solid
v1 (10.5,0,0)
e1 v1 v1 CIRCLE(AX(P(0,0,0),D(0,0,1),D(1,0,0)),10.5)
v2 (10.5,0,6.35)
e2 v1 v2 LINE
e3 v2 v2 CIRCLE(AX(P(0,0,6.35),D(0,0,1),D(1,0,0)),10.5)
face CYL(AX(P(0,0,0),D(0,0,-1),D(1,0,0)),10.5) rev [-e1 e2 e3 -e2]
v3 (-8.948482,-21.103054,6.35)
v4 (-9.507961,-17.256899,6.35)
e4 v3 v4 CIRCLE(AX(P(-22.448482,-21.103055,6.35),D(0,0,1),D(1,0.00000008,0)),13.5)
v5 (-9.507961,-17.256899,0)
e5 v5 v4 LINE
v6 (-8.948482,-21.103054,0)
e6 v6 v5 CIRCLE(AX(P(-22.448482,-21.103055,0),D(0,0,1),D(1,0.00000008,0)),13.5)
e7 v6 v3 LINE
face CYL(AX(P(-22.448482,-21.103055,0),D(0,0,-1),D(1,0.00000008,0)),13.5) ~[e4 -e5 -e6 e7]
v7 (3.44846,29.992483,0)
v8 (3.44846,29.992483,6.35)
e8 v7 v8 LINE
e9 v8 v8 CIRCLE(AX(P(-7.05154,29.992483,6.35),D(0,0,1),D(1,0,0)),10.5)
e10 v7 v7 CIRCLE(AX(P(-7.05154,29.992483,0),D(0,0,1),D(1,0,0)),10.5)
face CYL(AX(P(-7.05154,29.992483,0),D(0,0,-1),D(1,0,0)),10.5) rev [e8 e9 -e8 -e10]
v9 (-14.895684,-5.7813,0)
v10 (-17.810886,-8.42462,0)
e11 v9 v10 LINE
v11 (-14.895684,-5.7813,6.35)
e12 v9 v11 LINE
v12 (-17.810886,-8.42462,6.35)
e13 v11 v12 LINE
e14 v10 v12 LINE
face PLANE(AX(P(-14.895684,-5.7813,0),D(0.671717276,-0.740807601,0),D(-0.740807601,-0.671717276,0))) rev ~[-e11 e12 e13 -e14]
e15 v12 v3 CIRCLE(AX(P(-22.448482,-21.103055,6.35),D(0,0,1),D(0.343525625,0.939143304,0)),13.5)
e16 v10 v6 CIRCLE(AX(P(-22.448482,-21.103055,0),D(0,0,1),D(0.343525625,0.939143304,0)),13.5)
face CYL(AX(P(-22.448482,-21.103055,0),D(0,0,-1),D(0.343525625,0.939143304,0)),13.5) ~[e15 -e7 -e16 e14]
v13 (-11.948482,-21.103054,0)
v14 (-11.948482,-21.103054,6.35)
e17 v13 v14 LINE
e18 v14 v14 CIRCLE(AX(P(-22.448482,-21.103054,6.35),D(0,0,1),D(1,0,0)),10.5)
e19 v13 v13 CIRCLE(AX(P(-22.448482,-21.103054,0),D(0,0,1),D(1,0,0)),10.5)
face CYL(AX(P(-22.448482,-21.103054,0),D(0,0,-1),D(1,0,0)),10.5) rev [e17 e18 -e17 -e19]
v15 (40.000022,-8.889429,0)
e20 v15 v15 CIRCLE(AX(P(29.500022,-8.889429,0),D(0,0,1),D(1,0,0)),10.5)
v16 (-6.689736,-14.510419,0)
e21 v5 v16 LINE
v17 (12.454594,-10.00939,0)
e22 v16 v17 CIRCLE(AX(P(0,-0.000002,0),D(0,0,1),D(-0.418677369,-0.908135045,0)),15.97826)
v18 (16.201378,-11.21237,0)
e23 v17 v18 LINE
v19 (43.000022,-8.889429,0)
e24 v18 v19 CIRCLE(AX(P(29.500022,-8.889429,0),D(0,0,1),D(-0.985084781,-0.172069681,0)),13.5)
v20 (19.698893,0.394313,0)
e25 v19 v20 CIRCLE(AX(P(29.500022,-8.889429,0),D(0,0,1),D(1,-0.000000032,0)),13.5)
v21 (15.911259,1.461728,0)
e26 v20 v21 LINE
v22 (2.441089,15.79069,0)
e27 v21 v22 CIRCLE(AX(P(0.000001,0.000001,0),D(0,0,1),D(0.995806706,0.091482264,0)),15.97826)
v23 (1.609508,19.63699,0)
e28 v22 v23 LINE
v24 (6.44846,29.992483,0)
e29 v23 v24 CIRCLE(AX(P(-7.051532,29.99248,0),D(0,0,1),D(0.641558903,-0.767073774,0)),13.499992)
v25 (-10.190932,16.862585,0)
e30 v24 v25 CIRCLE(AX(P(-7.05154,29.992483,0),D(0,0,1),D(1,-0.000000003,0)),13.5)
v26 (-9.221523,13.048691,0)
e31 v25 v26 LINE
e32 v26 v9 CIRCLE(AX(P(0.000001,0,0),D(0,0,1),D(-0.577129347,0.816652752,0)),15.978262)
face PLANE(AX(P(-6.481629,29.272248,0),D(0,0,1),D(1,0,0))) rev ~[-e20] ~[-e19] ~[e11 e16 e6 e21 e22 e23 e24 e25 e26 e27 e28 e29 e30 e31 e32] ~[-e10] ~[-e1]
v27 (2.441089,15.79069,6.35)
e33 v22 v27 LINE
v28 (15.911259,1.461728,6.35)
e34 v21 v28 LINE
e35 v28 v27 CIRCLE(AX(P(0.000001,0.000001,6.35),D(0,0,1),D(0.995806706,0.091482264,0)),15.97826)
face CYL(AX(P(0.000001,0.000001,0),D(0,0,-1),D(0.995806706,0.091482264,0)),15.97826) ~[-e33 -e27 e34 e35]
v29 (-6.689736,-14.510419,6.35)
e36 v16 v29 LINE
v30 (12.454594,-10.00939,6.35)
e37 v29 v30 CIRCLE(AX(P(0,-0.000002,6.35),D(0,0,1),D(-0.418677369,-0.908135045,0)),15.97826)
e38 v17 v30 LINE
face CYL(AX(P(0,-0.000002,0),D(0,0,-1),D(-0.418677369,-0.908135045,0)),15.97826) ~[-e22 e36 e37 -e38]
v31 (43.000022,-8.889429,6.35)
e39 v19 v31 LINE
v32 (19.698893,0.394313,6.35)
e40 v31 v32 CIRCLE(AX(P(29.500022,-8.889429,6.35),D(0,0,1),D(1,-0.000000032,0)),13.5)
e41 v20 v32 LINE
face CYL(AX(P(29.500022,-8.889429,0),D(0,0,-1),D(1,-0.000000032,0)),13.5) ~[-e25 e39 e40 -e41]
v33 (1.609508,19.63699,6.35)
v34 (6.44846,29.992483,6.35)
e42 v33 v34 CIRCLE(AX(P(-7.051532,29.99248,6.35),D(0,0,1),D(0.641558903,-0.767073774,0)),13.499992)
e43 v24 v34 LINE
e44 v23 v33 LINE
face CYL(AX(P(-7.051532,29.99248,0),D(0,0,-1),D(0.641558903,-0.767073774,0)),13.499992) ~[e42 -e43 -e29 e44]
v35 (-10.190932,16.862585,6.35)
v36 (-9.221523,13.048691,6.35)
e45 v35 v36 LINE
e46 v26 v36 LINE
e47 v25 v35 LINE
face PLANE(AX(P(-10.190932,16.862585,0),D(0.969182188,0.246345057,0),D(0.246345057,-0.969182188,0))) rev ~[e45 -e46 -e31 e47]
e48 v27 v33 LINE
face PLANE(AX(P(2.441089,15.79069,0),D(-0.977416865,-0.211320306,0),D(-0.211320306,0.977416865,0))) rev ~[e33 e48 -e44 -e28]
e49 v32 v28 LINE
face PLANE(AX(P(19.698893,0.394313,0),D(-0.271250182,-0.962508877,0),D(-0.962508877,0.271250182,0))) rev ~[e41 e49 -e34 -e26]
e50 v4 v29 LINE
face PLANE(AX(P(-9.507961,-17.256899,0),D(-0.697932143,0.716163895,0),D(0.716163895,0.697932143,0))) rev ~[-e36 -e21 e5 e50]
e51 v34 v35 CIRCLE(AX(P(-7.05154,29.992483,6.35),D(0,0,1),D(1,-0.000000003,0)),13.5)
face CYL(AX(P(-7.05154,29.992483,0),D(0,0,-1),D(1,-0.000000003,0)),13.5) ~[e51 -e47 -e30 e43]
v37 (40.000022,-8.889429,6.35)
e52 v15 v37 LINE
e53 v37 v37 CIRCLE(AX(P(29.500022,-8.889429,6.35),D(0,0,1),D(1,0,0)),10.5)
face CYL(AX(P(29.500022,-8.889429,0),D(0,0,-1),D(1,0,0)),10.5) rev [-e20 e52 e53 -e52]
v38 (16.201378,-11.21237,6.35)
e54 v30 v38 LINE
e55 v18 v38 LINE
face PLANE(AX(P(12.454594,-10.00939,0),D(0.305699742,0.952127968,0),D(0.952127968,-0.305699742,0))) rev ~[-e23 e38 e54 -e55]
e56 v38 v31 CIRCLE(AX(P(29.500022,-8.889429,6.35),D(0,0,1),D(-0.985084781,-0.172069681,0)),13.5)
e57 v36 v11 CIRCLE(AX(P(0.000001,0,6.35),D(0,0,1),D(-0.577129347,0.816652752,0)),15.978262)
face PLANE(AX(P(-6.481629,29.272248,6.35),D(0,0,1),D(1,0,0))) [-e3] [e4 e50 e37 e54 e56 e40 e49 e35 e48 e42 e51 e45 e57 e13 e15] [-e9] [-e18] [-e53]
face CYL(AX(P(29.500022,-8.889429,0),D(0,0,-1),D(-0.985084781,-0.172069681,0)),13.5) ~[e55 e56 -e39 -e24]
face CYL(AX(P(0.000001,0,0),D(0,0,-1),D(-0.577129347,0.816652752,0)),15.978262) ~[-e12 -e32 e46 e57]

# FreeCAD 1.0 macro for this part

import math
import FreeCAD as App
import Part
import Sketcher
Q = App.Units.Quantity

doc = App.newDocument("Part")
body = doc.addObject("PartDesign::Body", "Body")

# Sketch on XY plane
sketch1 = body.newObject("Sketcher::SketchObject", "Sketch")
sketch1.AttachmentSupport = (doc.getObject("XY_Plane"), [""])
sketch1.MapMode = "FlatFace"
sketch1.addGeometry([
    Part.ArcOfCircle(Part.Circle(App.Vector(-7.1, 30, 0), App.Vector(0, 0, 1), 13.5), math.radians(0), math.radians(257)),  # 0
    Part.LineSegment(App.Vector(-10.2, 16.9, 0), App.Vector(-9.2, 13, 0)),  # 1
    Part.ArcOfCircle(Part.Circle(App.Vector(0, 0, 0), App.Vector(0, 0, 1), 16), math.radians(125), math.radians(201)),  # 2
    Part.LineSegment(App.Vector(-14.9, -5.8, 0), App.Vector(-17.8, -8.4, 0)),  # 3
    Part.ArcOfCircle(Part.Circle(App.Vector(-22.4, -21.1, 0), App.Vector(0, 0, 1), 13.5), math.radians(70), math.radians(360)),  # 4
    Part.ArcOfCircle(Part.Circle(App.Vector(-22.4, -21.1, 0), App.Vector(0, 0, 1), 13.5), math.radians(0), math.radians(16.55)),  # 5
    Part.LineSegment(App.Vector(-9.5, -17.3, 0), App.Vector(-6.7, -14.5, 0)),  # 6
    Part.ArcOfCircle(Part.Circle(App.Vector(0, 0, 0), App.Vector(0, 0, 1), 16), math.radians(-115), math.radians(-39)),  # 7
    Part.LineSegment(App.Vector(12.5, -10, 0), App.Vector(16.2, -11.2, 0)),  # 8
    Part.ArcOfCircle(Part.Circle(App.Vector(29.5, -8.9, 0), App.Vector(0, 0, 1), 13.5), math.radians(-170), math.radians(0)),  # 9
    Part.ArcOfCircle(Part.Circle(App.Vector(29.5, -8.9, 0), App.Vector(0, 0, 1), 13.5), math.radians(0), math.radians(137)),  # 10
    Part.LineSegment(App.Vector(19.7, 0.4, 0), App.Vector(15.9, 1.5, 0)),  # 11
    Part.ArcOfCircle(Part.Circle(App.Vector(0, 0, 0), App.Vector(0, 0, 1), 16), math.radians(5), math.radians(81)),  # 12
    Part.LineSegment(App.Vector(2.4, 15.8, 0), App.Vector(1.6, 19.6, 0)),  # 13
    Part.ArcOfCircle(Part.Circle(App.Vector(-7.1, 30, 0), App.Vector(0, 0, 1), 13.5), math.radians(-50), math.radians(0)),  # 14
    Part.Circle(App.Vector(-22.4, -21.1, 0), App.Vector(0, 0, 1), 10.5),  # 15
    Part.Circle(App.Vector(0, 0, 0), App.Vector(0, 0, 1), 10.5),  # 16
    Part.Circle(App.Vector(29.5, -8.9, 0), App.Vector(0, 0, 1), 10.5),  # 17
    Part.Circle(App.Vector(-7.1, 30, 0), App.Vector(0, 0, 1), 10.5),  # 18
], False)
sketch1.addConstraint([
    Sketcher.Constraint("Coincident", 0, 2, 1, 1),
    Sketcher.Constraint("Coincident", 1, 2, 2, 1),
    Sketcher.Constraint("Coincident", 2, 2, 3, 1),
    Sketcher.Constraint("Coincident", 3, 2, 4, 1),
    Sketcher.Constraint("Tangent", 4, 2, 5, 1),
    Sketcher.Constraint("Coincident", 5, 2, 6, 1),
    Sketcher.Constraint("Coincident", 6, 2, 7, 1),
    Sketcher.Constraint("Coincident", 7, 2, 8, 1),
    Sketcher.Constraint("Coincident", 8, 2, 9, 1),
    Sketcher.Constraint("Tangent", 9, 2, 10, 1),
    Sketcher.Constraint("Coincident", 10, 2, 11, 1),
    Sketcher.Constraint("Coincident", 11, 2, 12, 1),
    Sketcher.Constraint("Coincident", 12, 2, 13, 1),
    Sketcher.Constraint("Coincident", 13, 2, 14, 1),
    Sketcher.Constraint("Tangent", 14, 2, 0, 1),
    Sketcher.Constraint("Coincident", 2, 3, -1, 1),
    Sketcher.Constraint("Coincident", 7, 3, -1, 1),
    Sketcher.Constraint("Coincident", 12, 3, -1, 1),
    Sketcher.Constraint("Coincident", 16, 3, -1, 1),
    Sketcher.Constraint("Coincident", 15, 3, 4, 3),
    Sketcher.Constraint("Coincident", 17, 3, 9, 3),
    Sketcher.Constraint("Coincident", 18, 3, 0, 3),
    Sketcher.Constraint("Equal", 0, 4),
    Sketcher.Constraint("Equal", 4, 5),
    Sketcher.Constraint("Equal", 5, 9),
    Sketcher.Constraint("Equal", 9, 10),
    Sketcher.Constraint("Equal", 7, 12),
    Sketcher.Constraint("Equal", 15, 16),
    Sketcher.Constraint("Equal", 16, 17),
    Sketcher.Constraint("Equal", 17, 18),
    Sketcher.Constraint("Horizontal", 15, 3, 4, 2),
    Sketcher.Constraint("Horizontal", 17, 3, 9, 2),
    Sketcher.Constraint("Horizontal", 18, 3, 14, 2),
    Sketcher.Constraint("Equal", 1, 3),
    Sketcher.Constraint("Equal", 3, 6),
    Sketcher.Constraint("Equal", 6, 8),
    Sketcher.Constraint("Equal", 8, 11),
    Sketcher.Constraint("Equal", 11, 13),
    Sketcher.Constraint("Diameter", 15, Q("21 mm")),
    Sketcher.Constraint("Radius", 0, Q("13.5 mm")),
    Sketcher.Constraint("Radius", 2, Q("15.978262 mm")),
    Sketcher.Constraint("Radius", 7, Q("15.97826 mm")),
    Sketcher.Constraint("Radius", 14, Q("13.499992 mm")),
    Sketcher.Constraint("DistanceY", 1, 2, 12, 2, Q("2.741999 mm")),
    Sketcher.Constraint("DistanceY", 2, 2, -1, 1, Q("5.7813 mm")),
    Sketcher.Constraint("DistanceY", 5, 2, -1, 1, Q("17.256899 mm")),
    Sketcher.Constraint("DistanceX", 0, 2, 14, 3, Q("3.1394 mm")),
    Sketcher.Constraint("DistanceX", 15, 3, 2, 2, Q("7.552798 mm")),
    Sketcher.Constraint("DistanceY", 6, 2, 3, 2, Q("6.085799 mm")),
    Sketcher.Constraint("DistanceX", 7, 2, 10, 2, Q("7.244299 mm")),
    Sketcher.Constraint("DistanceY", 8, 2, 11, 2, Q("12.674098 mm")),
    Sketcher.Constraint("DistanceY", 12, 2, 13, 2, Q("3.8463 mm")),
    Sketcher.Constraint("Distance", 8, Q("3.935169 mm")),
    Sketcher.Constraint("DistanceX", 0, 3, -1, 1, Q("7.05154 mm")),
    Sketcher.Constraint("DistanceY", 9, 3, -1, 1, Q("8.889429 mm")),
    Sketcher.Constraint("DistanceY", 7, 2, -1, 1, Q("10.00939 mm")),
])
pad1 = body.newObject("PartDesign::Pad", "Pad")
pad1.Profile = sketch1
pad1.Length = 6.35

doc.recompute()
